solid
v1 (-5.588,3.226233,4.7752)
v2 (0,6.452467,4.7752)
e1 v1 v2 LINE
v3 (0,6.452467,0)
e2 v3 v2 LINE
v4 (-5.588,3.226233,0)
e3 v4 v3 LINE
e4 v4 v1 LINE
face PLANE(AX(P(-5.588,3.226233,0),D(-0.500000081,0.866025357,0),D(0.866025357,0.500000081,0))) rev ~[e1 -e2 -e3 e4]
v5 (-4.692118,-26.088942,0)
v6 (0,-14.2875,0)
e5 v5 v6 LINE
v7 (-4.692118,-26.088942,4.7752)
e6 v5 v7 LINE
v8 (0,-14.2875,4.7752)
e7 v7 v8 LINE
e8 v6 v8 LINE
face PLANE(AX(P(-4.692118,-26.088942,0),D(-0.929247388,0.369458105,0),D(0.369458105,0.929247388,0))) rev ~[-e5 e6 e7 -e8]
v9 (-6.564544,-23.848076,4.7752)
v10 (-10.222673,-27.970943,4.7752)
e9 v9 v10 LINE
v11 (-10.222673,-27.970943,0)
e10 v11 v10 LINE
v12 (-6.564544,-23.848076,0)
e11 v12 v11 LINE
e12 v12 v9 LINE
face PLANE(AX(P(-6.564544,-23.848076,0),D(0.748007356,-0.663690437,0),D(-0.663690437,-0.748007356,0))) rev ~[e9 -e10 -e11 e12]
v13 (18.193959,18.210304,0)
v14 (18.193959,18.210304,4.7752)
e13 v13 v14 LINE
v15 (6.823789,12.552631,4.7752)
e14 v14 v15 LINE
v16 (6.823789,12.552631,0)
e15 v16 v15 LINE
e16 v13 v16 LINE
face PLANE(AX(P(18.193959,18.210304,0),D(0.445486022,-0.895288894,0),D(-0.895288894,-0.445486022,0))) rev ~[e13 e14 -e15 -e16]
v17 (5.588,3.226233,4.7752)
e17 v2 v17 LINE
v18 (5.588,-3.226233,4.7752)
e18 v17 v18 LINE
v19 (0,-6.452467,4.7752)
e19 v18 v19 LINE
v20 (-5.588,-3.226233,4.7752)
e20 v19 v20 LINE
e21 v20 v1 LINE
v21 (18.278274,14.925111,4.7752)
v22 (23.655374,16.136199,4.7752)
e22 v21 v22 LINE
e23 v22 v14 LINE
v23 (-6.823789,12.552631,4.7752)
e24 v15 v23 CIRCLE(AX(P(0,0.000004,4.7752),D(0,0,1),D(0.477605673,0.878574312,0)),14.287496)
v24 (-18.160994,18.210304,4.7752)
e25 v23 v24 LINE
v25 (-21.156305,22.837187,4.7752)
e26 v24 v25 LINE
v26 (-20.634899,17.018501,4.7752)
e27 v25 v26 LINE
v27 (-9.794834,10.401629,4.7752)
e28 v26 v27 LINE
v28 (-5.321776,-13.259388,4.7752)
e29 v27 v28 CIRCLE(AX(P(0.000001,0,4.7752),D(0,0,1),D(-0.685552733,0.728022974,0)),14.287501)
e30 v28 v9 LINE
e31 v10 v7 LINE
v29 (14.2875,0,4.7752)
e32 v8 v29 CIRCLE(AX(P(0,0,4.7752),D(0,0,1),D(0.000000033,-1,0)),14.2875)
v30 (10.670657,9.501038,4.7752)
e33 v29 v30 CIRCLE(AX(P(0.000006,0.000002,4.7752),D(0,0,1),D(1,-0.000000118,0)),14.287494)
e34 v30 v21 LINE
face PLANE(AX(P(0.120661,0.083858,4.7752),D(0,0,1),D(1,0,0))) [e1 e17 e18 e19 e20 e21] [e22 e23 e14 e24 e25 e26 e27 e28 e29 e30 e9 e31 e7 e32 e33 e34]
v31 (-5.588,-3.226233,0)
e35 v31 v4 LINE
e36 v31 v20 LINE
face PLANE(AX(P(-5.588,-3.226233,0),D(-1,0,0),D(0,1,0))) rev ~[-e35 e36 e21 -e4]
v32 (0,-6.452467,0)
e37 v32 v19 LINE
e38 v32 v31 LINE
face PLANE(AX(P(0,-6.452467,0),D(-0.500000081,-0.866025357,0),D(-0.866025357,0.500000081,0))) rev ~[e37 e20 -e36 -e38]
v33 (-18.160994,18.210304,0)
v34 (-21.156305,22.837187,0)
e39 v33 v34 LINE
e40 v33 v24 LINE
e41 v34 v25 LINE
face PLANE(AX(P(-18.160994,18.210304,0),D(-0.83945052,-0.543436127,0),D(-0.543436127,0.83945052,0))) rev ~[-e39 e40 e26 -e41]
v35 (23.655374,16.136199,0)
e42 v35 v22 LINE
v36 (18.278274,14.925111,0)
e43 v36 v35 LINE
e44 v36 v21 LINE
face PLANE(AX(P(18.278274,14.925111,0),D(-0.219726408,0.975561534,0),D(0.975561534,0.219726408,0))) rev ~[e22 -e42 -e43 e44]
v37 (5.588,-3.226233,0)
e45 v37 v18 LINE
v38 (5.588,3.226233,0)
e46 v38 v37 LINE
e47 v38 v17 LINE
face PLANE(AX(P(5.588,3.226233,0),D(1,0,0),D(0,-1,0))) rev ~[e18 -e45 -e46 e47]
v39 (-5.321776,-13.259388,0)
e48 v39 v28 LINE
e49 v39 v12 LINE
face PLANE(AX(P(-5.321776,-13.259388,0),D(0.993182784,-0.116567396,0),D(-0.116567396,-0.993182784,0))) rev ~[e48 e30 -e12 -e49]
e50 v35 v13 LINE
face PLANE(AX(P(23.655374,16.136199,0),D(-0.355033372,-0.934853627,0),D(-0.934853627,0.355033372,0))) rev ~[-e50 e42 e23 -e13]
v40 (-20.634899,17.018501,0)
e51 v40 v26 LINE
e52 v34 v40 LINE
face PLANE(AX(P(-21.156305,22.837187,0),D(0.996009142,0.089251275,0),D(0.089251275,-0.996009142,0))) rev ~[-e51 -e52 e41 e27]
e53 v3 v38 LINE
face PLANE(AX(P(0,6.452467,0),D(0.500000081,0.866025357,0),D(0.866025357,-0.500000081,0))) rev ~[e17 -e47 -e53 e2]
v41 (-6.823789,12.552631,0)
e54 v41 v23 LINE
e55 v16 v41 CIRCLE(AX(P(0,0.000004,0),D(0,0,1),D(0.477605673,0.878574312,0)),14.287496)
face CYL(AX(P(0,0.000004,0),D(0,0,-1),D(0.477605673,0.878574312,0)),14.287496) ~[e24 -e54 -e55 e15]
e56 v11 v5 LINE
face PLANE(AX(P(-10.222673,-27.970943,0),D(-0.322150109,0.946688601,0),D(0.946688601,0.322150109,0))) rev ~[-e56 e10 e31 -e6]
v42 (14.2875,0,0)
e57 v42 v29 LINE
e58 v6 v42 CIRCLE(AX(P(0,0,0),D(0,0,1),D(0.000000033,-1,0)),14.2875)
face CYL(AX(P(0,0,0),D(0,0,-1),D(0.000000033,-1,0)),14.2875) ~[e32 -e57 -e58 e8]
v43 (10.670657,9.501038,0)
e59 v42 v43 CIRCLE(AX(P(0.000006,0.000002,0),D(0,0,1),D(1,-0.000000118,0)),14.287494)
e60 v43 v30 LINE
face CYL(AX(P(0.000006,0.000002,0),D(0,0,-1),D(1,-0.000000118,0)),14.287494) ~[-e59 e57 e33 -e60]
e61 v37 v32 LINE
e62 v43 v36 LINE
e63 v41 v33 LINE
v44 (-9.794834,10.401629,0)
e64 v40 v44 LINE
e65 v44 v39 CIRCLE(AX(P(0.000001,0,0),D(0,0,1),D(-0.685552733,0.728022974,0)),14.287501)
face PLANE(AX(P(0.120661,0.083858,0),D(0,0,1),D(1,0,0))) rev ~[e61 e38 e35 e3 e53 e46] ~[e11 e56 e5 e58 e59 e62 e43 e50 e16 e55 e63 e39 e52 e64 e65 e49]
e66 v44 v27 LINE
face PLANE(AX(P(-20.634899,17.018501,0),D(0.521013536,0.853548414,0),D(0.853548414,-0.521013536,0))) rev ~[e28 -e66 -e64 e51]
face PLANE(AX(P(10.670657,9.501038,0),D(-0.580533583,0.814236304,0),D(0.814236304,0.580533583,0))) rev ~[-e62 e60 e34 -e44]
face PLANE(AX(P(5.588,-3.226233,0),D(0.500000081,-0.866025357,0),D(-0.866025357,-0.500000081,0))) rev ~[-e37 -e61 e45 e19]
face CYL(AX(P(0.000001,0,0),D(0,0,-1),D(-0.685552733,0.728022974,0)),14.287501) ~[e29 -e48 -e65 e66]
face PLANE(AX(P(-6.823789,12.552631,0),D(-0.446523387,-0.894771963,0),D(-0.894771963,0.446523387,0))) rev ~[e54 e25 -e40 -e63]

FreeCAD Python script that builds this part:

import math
import FreeCAD as App
import Part
import Sketcher
Q = App.Units.Quantity

doc = App.newDocument("Part")
body = doc.addObject("PartDesign::Body", "Body")

# Sketch on XY plane
sketch1 = doc.addObject("Sketcher::SketchObject", "Sketch")
body.addObject(sketch1)
sketch1.AttachmentSupport = (doc.XY_Plane, [""])
sketch1.MapMode = "FlatFace"
sketch1.addGeometry([
    Part.ArcOfCircle(Part.Circle(App.Vector(0, 0, 0), App.Vector(0, 0, 1), 14.2875), math.radians(-89.999998), math.radians(-0.000002)),  # 0
    Part.ArcOfCircle(Part.Circle(App.Vector(0.000006, 0.000002, 0), App.Vector(0, 0, 1), 14.287494), math.radians(-0.000007), math.radians(41.681536)),  # 1
    Part.LineSegment(App.Vector(10.670657, 9.501038, 0), App.Vector(18.278274, 14.925111, 0)),  # 2
    Part.LineSegment(App.Vector(18.278274, 14.925111, 0), App.Vector(23.655374, 16.136199, 0)),  # 3
    Part.LineSegment(App.Vector(23.655374, 16.136199, 0), App.Vector(18.193959, 18.210304, 0)),  # 4
    Part.LineSegment(App.Vector(18.193959, 18.210304, 0), App.Vector(6.823789, 12.552631, 0)),  # 5
    Part.ArcOfCircle(Part.Circle(App.Vector(0, 0.000004, 0), App.Vector(0, 0, 1), 14.287496), math.radians(61.470859), math.radians(118.529141)),  # 6
    Part.LineSegment(App.Vector(-6.823789, 12.552631, 0), App.Vector(-18.160994, 18.210304, 0)),  # 7
    Part.LineSegment(App.Vector(-18.160994, 18.210304, 0), App.Vector(-21.156305, 22.837187, 0)),  # 8
    Part.LineSegment(App.Vector(-21.156305, 22.837187, 0), App.Vector(-20.634899, 17.018501, 0)),  # 9
    Part.LineSegment(App.Vector(-20.634899, 17.018501, 0), App.Vector(-9.794834, 10.401629, 0)),  # 10
    Part.ArcOfCircle(Part.Circle(App.Vector(0.000001, 0, 0), App.Vector(0, 0, 1), 14.287501), math.radians(133.279092), math.radians(248.131487)),  # 11
    Part.LineSegment(App.Vector(-5.321776, -13.259388, 0), App.Vector(-6.564544, -23.848076, 0)),  # 12
    Part.LineSegment(App.Vector(-6.564544, -23.848076, 0), App.Vector(-10.222673, -27.970943, 0)),  # 13
    Part.LineSegment(App.Vector(-10.222673, -27.970943, 0), App.Vector(-4.692118, -26.088942, 0)),  # 14
    Part.LineSegment(App.Vector(-4.692118, -26.088942, 0), App.Vector(0, -14.2875, 0)),  # 15
    Part.LineSegment(App.Vector(-5.588, 3.226233, 0), App.Vector(0, 6.452467, 0)),  # 16
    Part.LineSegment(App.Vector(0, 6.452467, 0), App.Vector(5.588, 3.226233, 0)),  # 17
    Part.LineSegment(App.Vector(5.588, 3.226233, 0), App.Vector(5.588, -3.226233, 0)),  # 18
    Part.LineSegment(App.Vector(5.588, -3.226233, 0), App.Vector(0, -6.452467, 0)),  # 19
    Part.LineSegment(App.Vector(0, -6.452467, 0), App.Vector(-5.588, -3.226233, 0)),  # 20
    Part.LineSegment(App.Vector(-5.588, -3.226233, 0), App.Vector(-5.588, 3.226233, 0)),  # 21
], False)
sketch1.addConstraint([
    Sketcher.Constraint("Tangent", 0, 2, 1, 1),
    Sketcher.Constraint("Coincident", 1, 2, 2, 1),
    Sketcher.Constraint("Coincident", 2, 2, 3, 1),
    Sketcher.Constraint("Coincident", 3, 2, 4, 1),
    Sketcher.Constraint("Coincident", 4, 2, 5, 1),
    Sketcher.Constraint("Coincident", 5, 2, 6, 1),
    Sketcher.Constraint("Coincident", 6, 2, 7, 1),
    Sketcher.Constraint("Coincident", 7, 2, 8, 1),
    Sketcher.Constraint("Coincident", 8, 2, 9, 1),
    Sketcher.Constraint("Coincident", 9, 2, 10, 1),
    Sketcher.Constraint("Coincident", 10, 2, 11, 1),
    Sketcher.Constraint("Coincident", 11, 2, 12, 1),
    Sketcher.Constraint("Coincident", 12, 2, 13, 1),
    Sketcher.Constraint("Coincident", 13, 2, 14, 1),
    Sketcher.Constraint("Coincident", 14, 2, 15, 1),
    Sketcher.Constraint("Coincident", 15, 2, 0, 1),
    Sketcher.Constraint("Coincident", 16, 2, 17, 1),
    Sketcher.Constraint("Coincident", 17, 2, 18, 1),
    Sketcher.Constraint("Coincident", 18, 2, 19, 1),
    Sketcher.Constraint("Coincident", 19, 2, 20, 1),
    Sketcher.Constraint("Coincident", 20, 2, 21, 1),
    Sketcher.Constraint("Coincident", 21, 2, 16, 1),
    Sketcher.Constraint("Vertical", 18),
    Sketcher.Constraint("Vertical", 21),
    Sketcher.Constraint("Coincident", 0, 3, -1, 1),
    Sketcher.Constraint("Coincident", 6, 3, -1, 1),
    Sketcher.Constraint("Coincident", 11, 3, -1, 1),
    Sketcher.Constraint("Equal", 1, 6),
    Sketcher.Constraint("Equal", 0, 11),
    Sketcher.Constraint("Symmetric", 16, 2, 19, 2, -1, 1),
    Sketcher.Constraint("Symmetric", 17, 2, 20, 2, -1, 1),
    Sketcher.Constraint("PointOnObject", 0, 2, -1),
    Sketcher.Constraint("PointOnObject", 15, 2, -2),
    Sketcher.Constraint("PointOnObject", 16, 2, -2),
    Sketcher.Constraint("Parallel", 16, 19),
    Sketcher.Constraint("Horizontal", 5, 2, 6, 2),
    Sketcher.Constraint("Horizontal", 4, 2, 7, 2),
    Sketcher.Constraint("Horizontal", 18, 2, 20, 2),
    Sketcher.Constraint("Equal", 3, 8),
    Sketcher.Constraint("Equal", 4, 9),
    Sketcher.Constraint("Equal", 5, 10),
    Sketcher.Constraint("Equal", 8, 13),
    Sketcher.Constraint("Equal", 9, 14),
    Sketcher.Constraint("Equal", 10, 15),
    Sketcher.Constraint("Angle", 16, Q("30.000005 deg")),
    Sketcher.Constraint("Radius", 0, Q("0.5625 in")),
    Sketcher.Constraint("Distance", 5, Q("0.5 in")),
    Sketcher.Constraint("Radius", 6, Q("0.5624998 in")),
    Sketcher.Constraint("Distance", 4, Q("0.23 in")),
    Sketcher.Constraint("DistanceX", -1, 1, 17, 2, Q("0.22 in")),
    Sketcher.Constraint("Distance", 3, Q("0.217 in")),
    Sketcher.Constraint("DistanceX", 7, 2, 11, 3, Q("0.7149998 in")),
    Sketcher.Constraint("DistanceY", -1, 1, 3, 2, Q("16.136199 mm")),
    Sketcher.Constraint("DistanceX", 9, 2, -1, 1, Q("20.634899 mm")),
    Sketcher.Constraint("DistanceY", -1, 1, 9, 2, Q("17.018501 mm")),
    Sketcher.Constraint("DistanceX", 2, 2, 3, 2, Q("5.3771 mm")),
    Sketcher.Constraint("DistanceX", 1, 2, 4, 2, Q("7.523302 mm")),
    Sketcher.Constraint("DistanceY", 6, 3, 7, 2, Q("18.2103 mm")),
    Sketcher.Constraint("DistanceY", 10, 2, 6, 2, Q("2.151002 mm")),
    Sketcher.Constraint("DistanceY", 13, 2, 14, 2, Q("1.882001 mm")),
    Sketcher.Constraint("Distance", 12, Q("10.661369 mm")),
    Sketcher.Constraint("DistanceY", 18, 2, 18, 1, Q("6.452466 mm")),
    Sketcher.Constraint("DistanceY", 11, 2, -1, 1, Q("13.259388 mm")),
    Sketcher.Constraint("DistanceY", 14, 2, -1, 1, Q("26.088942 mm")),
])
pad1 = doc.addObject("PartDesign::Pad", "Pad")
body.addObject(pad1)
pad1.Profile = sketch1
pad1.Length = Q("0.188 in")

doc.recompute()
